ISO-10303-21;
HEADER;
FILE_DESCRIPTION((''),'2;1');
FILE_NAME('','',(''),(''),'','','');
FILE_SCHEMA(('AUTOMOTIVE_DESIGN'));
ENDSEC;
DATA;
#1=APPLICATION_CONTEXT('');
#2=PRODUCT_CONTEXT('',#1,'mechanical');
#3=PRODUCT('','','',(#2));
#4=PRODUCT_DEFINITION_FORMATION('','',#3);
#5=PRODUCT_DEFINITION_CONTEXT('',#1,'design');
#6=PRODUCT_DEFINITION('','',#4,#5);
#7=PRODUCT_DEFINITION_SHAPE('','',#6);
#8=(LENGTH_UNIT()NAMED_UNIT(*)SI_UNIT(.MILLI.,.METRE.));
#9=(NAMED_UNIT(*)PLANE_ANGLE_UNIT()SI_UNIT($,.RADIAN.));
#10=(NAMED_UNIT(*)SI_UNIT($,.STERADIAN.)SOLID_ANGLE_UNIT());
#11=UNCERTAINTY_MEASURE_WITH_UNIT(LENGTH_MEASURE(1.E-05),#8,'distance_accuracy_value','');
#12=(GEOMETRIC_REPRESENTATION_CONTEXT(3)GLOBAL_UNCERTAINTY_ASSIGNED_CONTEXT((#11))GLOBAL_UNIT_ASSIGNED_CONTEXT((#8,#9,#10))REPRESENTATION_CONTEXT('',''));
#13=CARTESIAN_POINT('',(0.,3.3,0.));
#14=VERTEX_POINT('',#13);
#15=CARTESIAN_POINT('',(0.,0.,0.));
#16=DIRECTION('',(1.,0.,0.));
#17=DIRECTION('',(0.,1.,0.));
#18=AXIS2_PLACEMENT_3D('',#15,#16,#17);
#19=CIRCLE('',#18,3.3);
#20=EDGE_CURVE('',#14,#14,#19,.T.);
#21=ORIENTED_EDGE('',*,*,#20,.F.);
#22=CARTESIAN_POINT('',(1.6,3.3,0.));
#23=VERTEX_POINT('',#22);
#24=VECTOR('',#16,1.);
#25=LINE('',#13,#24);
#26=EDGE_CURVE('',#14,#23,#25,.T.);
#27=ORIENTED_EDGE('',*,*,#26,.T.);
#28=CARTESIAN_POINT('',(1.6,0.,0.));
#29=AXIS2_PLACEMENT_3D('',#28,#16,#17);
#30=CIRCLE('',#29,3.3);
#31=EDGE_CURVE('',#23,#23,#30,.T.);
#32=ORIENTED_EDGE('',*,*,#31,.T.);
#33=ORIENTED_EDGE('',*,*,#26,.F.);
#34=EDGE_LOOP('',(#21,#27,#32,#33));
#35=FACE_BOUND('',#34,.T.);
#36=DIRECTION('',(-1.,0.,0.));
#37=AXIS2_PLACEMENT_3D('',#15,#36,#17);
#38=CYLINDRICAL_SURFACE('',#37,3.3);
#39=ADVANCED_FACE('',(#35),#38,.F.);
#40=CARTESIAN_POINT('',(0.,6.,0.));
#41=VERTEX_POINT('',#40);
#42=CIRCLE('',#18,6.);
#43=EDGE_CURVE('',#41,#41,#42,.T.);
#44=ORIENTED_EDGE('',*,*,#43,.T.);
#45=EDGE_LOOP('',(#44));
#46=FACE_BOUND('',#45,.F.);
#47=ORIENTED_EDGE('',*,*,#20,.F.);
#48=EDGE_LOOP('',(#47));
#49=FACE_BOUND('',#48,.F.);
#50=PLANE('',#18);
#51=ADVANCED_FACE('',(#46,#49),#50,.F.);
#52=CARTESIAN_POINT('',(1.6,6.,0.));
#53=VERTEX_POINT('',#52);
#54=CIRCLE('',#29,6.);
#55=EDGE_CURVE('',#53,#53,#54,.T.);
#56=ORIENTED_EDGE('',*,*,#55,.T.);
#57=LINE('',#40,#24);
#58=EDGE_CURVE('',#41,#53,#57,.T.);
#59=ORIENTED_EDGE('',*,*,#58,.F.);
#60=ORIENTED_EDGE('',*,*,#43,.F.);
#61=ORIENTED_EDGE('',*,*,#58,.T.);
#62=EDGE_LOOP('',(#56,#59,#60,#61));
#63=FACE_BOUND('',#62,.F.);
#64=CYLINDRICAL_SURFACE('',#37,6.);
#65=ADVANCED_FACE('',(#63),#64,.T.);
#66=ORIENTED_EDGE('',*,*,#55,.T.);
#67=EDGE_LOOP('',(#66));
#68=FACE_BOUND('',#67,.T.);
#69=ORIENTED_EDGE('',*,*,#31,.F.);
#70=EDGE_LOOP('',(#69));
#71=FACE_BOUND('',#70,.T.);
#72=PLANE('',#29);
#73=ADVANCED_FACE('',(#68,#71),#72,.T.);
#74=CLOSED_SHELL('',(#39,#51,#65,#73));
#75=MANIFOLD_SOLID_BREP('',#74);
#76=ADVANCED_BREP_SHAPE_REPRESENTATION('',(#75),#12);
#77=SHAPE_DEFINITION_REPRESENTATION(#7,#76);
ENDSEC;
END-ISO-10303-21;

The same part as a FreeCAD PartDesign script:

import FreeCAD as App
import Part
import Sketcher
Q = App.Units.Quantity

doc = App.newDocument("Part")
body = doc.addObject("PartDesign::Body", "Body")

# Sketch on YZ plane
sketch1 = body.newObject("Sketcher::SketchObject", "Sketch")
sketch1.AttachmentSupport = (doc.getObject("YZ_Plane"), [""])
sketch1.MapMode = "FlatFace"
sketch1.addGeometry(Part.Circle(App.Vector(0, 0, 0), App.Vector(0, 0, 1), 6), False)
sketch1.addGeometry(Part.Circle(App.Vector(0, 0, 0), App.Vector(0, 0, 1), 3.3), False)
sketch1.addConstraint(Sketcher.Constraint("Coincident", 0, 3, -1, 1))
sketch1.addConstraint(Sketcher.Constraint("Coincident", 1, 3, -1, 1))
sketch1.addConstraint(Sketcher.Constraint("Diameter", 0, Q("12 mm")))
sketch1.addConstraint(Sketcher.Constraint("Diameter", 1, Q("6.6 mm")))
pad1 = body.newObject("PartDesign::Pad", "Pad")
pad1.Profile = sketch1
pad1.Length = 1.6

doc.recompute()
